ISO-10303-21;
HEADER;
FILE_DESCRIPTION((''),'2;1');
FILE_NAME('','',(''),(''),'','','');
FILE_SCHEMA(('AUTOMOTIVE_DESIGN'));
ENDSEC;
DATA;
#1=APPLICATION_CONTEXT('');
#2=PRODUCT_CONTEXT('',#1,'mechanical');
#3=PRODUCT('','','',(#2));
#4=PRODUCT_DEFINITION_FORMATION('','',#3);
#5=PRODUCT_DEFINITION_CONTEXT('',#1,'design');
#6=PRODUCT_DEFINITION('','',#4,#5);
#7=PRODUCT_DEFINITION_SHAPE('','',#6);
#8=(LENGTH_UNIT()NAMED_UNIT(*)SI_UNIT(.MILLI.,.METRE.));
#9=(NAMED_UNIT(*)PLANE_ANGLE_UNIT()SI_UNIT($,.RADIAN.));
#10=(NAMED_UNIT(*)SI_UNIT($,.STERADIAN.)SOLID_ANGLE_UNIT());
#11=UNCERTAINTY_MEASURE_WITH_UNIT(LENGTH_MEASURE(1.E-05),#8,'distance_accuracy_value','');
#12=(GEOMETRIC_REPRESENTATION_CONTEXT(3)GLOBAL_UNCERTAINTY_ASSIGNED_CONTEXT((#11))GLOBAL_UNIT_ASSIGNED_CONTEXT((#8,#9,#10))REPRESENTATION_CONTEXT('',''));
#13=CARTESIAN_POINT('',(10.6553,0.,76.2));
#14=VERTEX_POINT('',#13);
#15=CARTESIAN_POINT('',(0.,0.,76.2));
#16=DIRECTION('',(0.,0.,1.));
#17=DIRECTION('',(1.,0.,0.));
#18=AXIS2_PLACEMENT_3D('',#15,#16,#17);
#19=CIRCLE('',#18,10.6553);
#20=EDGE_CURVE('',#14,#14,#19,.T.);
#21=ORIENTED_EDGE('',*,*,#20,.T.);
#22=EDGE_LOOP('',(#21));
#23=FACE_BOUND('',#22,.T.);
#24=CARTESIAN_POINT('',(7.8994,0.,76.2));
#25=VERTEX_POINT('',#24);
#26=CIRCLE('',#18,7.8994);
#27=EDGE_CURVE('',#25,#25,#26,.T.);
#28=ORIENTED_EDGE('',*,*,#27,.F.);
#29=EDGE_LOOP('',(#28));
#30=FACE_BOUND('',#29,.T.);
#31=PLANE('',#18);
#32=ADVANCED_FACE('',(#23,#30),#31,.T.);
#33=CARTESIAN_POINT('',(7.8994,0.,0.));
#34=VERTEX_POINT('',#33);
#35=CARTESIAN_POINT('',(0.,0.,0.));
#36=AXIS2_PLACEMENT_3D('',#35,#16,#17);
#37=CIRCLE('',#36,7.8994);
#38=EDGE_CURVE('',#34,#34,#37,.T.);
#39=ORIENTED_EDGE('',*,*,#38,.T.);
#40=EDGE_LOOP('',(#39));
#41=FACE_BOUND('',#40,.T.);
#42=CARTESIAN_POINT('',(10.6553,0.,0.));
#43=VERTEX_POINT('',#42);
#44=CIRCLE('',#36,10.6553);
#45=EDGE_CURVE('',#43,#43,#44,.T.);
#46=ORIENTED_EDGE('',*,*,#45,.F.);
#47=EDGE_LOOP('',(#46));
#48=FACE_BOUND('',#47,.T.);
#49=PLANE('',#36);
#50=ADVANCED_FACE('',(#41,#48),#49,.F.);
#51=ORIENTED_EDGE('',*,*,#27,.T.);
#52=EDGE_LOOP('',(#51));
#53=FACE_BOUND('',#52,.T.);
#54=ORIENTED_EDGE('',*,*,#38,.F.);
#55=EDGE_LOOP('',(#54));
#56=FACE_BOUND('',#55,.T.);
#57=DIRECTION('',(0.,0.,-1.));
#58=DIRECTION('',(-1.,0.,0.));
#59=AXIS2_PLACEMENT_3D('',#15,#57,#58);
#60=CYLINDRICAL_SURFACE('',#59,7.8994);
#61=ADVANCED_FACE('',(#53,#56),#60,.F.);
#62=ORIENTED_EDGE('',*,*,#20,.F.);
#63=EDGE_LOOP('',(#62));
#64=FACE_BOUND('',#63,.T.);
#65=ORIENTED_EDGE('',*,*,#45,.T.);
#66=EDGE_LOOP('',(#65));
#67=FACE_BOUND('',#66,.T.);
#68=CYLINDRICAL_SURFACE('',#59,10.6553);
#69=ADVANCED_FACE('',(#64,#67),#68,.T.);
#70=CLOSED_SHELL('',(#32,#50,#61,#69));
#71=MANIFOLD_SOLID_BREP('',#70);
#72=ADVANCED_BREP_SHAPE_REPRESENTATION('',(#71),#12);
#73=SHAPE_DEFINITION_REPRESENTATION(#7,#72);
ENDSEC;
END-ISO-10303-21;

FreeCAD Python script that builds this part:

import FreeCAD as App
import Part
import Sketcher

V = App.Vector
Q = App.Units.Quantity

doc = App.newDocument("Part")
body = doc.addObject("PartDesign::Body", "Body")

sketch1 = body.newObject("Sketcher::SketchObject", "Sketch")
sketch1.AttachmentSupport = (doc.getObject("XY_Plane"), [""])
sketch1.MapMode = "FlatFace"
sketch1.addGeometry(Part.Circle(V(0, 0, 0), V(0, 0, 1), 11), False)
sketch1.addGeometry(Part.Circle(V(0, 0, 0), V(0, 0, 1), 8), False)
sketch1.addConstraint(Sketcher.Constraint("Coincident", 0, 3, -1, 1))
sketch1.addConstraint(Sketcher.Constraint("Coincident", 1, 3, -1, 1))
sketch1.addConstraint(Sketcher.Constraint("Diameter", 0, Q("0.839 in")))
sketch1.addConstraint(Sketcher.Constraint("Diameter", 1, Q("0.622 in")))
pad1 = body.newObject("PartDesign::Pad", "Pad")
pad1.Profile = sketch1
pad1.Length = Q("3 in")

doc.recompute()
